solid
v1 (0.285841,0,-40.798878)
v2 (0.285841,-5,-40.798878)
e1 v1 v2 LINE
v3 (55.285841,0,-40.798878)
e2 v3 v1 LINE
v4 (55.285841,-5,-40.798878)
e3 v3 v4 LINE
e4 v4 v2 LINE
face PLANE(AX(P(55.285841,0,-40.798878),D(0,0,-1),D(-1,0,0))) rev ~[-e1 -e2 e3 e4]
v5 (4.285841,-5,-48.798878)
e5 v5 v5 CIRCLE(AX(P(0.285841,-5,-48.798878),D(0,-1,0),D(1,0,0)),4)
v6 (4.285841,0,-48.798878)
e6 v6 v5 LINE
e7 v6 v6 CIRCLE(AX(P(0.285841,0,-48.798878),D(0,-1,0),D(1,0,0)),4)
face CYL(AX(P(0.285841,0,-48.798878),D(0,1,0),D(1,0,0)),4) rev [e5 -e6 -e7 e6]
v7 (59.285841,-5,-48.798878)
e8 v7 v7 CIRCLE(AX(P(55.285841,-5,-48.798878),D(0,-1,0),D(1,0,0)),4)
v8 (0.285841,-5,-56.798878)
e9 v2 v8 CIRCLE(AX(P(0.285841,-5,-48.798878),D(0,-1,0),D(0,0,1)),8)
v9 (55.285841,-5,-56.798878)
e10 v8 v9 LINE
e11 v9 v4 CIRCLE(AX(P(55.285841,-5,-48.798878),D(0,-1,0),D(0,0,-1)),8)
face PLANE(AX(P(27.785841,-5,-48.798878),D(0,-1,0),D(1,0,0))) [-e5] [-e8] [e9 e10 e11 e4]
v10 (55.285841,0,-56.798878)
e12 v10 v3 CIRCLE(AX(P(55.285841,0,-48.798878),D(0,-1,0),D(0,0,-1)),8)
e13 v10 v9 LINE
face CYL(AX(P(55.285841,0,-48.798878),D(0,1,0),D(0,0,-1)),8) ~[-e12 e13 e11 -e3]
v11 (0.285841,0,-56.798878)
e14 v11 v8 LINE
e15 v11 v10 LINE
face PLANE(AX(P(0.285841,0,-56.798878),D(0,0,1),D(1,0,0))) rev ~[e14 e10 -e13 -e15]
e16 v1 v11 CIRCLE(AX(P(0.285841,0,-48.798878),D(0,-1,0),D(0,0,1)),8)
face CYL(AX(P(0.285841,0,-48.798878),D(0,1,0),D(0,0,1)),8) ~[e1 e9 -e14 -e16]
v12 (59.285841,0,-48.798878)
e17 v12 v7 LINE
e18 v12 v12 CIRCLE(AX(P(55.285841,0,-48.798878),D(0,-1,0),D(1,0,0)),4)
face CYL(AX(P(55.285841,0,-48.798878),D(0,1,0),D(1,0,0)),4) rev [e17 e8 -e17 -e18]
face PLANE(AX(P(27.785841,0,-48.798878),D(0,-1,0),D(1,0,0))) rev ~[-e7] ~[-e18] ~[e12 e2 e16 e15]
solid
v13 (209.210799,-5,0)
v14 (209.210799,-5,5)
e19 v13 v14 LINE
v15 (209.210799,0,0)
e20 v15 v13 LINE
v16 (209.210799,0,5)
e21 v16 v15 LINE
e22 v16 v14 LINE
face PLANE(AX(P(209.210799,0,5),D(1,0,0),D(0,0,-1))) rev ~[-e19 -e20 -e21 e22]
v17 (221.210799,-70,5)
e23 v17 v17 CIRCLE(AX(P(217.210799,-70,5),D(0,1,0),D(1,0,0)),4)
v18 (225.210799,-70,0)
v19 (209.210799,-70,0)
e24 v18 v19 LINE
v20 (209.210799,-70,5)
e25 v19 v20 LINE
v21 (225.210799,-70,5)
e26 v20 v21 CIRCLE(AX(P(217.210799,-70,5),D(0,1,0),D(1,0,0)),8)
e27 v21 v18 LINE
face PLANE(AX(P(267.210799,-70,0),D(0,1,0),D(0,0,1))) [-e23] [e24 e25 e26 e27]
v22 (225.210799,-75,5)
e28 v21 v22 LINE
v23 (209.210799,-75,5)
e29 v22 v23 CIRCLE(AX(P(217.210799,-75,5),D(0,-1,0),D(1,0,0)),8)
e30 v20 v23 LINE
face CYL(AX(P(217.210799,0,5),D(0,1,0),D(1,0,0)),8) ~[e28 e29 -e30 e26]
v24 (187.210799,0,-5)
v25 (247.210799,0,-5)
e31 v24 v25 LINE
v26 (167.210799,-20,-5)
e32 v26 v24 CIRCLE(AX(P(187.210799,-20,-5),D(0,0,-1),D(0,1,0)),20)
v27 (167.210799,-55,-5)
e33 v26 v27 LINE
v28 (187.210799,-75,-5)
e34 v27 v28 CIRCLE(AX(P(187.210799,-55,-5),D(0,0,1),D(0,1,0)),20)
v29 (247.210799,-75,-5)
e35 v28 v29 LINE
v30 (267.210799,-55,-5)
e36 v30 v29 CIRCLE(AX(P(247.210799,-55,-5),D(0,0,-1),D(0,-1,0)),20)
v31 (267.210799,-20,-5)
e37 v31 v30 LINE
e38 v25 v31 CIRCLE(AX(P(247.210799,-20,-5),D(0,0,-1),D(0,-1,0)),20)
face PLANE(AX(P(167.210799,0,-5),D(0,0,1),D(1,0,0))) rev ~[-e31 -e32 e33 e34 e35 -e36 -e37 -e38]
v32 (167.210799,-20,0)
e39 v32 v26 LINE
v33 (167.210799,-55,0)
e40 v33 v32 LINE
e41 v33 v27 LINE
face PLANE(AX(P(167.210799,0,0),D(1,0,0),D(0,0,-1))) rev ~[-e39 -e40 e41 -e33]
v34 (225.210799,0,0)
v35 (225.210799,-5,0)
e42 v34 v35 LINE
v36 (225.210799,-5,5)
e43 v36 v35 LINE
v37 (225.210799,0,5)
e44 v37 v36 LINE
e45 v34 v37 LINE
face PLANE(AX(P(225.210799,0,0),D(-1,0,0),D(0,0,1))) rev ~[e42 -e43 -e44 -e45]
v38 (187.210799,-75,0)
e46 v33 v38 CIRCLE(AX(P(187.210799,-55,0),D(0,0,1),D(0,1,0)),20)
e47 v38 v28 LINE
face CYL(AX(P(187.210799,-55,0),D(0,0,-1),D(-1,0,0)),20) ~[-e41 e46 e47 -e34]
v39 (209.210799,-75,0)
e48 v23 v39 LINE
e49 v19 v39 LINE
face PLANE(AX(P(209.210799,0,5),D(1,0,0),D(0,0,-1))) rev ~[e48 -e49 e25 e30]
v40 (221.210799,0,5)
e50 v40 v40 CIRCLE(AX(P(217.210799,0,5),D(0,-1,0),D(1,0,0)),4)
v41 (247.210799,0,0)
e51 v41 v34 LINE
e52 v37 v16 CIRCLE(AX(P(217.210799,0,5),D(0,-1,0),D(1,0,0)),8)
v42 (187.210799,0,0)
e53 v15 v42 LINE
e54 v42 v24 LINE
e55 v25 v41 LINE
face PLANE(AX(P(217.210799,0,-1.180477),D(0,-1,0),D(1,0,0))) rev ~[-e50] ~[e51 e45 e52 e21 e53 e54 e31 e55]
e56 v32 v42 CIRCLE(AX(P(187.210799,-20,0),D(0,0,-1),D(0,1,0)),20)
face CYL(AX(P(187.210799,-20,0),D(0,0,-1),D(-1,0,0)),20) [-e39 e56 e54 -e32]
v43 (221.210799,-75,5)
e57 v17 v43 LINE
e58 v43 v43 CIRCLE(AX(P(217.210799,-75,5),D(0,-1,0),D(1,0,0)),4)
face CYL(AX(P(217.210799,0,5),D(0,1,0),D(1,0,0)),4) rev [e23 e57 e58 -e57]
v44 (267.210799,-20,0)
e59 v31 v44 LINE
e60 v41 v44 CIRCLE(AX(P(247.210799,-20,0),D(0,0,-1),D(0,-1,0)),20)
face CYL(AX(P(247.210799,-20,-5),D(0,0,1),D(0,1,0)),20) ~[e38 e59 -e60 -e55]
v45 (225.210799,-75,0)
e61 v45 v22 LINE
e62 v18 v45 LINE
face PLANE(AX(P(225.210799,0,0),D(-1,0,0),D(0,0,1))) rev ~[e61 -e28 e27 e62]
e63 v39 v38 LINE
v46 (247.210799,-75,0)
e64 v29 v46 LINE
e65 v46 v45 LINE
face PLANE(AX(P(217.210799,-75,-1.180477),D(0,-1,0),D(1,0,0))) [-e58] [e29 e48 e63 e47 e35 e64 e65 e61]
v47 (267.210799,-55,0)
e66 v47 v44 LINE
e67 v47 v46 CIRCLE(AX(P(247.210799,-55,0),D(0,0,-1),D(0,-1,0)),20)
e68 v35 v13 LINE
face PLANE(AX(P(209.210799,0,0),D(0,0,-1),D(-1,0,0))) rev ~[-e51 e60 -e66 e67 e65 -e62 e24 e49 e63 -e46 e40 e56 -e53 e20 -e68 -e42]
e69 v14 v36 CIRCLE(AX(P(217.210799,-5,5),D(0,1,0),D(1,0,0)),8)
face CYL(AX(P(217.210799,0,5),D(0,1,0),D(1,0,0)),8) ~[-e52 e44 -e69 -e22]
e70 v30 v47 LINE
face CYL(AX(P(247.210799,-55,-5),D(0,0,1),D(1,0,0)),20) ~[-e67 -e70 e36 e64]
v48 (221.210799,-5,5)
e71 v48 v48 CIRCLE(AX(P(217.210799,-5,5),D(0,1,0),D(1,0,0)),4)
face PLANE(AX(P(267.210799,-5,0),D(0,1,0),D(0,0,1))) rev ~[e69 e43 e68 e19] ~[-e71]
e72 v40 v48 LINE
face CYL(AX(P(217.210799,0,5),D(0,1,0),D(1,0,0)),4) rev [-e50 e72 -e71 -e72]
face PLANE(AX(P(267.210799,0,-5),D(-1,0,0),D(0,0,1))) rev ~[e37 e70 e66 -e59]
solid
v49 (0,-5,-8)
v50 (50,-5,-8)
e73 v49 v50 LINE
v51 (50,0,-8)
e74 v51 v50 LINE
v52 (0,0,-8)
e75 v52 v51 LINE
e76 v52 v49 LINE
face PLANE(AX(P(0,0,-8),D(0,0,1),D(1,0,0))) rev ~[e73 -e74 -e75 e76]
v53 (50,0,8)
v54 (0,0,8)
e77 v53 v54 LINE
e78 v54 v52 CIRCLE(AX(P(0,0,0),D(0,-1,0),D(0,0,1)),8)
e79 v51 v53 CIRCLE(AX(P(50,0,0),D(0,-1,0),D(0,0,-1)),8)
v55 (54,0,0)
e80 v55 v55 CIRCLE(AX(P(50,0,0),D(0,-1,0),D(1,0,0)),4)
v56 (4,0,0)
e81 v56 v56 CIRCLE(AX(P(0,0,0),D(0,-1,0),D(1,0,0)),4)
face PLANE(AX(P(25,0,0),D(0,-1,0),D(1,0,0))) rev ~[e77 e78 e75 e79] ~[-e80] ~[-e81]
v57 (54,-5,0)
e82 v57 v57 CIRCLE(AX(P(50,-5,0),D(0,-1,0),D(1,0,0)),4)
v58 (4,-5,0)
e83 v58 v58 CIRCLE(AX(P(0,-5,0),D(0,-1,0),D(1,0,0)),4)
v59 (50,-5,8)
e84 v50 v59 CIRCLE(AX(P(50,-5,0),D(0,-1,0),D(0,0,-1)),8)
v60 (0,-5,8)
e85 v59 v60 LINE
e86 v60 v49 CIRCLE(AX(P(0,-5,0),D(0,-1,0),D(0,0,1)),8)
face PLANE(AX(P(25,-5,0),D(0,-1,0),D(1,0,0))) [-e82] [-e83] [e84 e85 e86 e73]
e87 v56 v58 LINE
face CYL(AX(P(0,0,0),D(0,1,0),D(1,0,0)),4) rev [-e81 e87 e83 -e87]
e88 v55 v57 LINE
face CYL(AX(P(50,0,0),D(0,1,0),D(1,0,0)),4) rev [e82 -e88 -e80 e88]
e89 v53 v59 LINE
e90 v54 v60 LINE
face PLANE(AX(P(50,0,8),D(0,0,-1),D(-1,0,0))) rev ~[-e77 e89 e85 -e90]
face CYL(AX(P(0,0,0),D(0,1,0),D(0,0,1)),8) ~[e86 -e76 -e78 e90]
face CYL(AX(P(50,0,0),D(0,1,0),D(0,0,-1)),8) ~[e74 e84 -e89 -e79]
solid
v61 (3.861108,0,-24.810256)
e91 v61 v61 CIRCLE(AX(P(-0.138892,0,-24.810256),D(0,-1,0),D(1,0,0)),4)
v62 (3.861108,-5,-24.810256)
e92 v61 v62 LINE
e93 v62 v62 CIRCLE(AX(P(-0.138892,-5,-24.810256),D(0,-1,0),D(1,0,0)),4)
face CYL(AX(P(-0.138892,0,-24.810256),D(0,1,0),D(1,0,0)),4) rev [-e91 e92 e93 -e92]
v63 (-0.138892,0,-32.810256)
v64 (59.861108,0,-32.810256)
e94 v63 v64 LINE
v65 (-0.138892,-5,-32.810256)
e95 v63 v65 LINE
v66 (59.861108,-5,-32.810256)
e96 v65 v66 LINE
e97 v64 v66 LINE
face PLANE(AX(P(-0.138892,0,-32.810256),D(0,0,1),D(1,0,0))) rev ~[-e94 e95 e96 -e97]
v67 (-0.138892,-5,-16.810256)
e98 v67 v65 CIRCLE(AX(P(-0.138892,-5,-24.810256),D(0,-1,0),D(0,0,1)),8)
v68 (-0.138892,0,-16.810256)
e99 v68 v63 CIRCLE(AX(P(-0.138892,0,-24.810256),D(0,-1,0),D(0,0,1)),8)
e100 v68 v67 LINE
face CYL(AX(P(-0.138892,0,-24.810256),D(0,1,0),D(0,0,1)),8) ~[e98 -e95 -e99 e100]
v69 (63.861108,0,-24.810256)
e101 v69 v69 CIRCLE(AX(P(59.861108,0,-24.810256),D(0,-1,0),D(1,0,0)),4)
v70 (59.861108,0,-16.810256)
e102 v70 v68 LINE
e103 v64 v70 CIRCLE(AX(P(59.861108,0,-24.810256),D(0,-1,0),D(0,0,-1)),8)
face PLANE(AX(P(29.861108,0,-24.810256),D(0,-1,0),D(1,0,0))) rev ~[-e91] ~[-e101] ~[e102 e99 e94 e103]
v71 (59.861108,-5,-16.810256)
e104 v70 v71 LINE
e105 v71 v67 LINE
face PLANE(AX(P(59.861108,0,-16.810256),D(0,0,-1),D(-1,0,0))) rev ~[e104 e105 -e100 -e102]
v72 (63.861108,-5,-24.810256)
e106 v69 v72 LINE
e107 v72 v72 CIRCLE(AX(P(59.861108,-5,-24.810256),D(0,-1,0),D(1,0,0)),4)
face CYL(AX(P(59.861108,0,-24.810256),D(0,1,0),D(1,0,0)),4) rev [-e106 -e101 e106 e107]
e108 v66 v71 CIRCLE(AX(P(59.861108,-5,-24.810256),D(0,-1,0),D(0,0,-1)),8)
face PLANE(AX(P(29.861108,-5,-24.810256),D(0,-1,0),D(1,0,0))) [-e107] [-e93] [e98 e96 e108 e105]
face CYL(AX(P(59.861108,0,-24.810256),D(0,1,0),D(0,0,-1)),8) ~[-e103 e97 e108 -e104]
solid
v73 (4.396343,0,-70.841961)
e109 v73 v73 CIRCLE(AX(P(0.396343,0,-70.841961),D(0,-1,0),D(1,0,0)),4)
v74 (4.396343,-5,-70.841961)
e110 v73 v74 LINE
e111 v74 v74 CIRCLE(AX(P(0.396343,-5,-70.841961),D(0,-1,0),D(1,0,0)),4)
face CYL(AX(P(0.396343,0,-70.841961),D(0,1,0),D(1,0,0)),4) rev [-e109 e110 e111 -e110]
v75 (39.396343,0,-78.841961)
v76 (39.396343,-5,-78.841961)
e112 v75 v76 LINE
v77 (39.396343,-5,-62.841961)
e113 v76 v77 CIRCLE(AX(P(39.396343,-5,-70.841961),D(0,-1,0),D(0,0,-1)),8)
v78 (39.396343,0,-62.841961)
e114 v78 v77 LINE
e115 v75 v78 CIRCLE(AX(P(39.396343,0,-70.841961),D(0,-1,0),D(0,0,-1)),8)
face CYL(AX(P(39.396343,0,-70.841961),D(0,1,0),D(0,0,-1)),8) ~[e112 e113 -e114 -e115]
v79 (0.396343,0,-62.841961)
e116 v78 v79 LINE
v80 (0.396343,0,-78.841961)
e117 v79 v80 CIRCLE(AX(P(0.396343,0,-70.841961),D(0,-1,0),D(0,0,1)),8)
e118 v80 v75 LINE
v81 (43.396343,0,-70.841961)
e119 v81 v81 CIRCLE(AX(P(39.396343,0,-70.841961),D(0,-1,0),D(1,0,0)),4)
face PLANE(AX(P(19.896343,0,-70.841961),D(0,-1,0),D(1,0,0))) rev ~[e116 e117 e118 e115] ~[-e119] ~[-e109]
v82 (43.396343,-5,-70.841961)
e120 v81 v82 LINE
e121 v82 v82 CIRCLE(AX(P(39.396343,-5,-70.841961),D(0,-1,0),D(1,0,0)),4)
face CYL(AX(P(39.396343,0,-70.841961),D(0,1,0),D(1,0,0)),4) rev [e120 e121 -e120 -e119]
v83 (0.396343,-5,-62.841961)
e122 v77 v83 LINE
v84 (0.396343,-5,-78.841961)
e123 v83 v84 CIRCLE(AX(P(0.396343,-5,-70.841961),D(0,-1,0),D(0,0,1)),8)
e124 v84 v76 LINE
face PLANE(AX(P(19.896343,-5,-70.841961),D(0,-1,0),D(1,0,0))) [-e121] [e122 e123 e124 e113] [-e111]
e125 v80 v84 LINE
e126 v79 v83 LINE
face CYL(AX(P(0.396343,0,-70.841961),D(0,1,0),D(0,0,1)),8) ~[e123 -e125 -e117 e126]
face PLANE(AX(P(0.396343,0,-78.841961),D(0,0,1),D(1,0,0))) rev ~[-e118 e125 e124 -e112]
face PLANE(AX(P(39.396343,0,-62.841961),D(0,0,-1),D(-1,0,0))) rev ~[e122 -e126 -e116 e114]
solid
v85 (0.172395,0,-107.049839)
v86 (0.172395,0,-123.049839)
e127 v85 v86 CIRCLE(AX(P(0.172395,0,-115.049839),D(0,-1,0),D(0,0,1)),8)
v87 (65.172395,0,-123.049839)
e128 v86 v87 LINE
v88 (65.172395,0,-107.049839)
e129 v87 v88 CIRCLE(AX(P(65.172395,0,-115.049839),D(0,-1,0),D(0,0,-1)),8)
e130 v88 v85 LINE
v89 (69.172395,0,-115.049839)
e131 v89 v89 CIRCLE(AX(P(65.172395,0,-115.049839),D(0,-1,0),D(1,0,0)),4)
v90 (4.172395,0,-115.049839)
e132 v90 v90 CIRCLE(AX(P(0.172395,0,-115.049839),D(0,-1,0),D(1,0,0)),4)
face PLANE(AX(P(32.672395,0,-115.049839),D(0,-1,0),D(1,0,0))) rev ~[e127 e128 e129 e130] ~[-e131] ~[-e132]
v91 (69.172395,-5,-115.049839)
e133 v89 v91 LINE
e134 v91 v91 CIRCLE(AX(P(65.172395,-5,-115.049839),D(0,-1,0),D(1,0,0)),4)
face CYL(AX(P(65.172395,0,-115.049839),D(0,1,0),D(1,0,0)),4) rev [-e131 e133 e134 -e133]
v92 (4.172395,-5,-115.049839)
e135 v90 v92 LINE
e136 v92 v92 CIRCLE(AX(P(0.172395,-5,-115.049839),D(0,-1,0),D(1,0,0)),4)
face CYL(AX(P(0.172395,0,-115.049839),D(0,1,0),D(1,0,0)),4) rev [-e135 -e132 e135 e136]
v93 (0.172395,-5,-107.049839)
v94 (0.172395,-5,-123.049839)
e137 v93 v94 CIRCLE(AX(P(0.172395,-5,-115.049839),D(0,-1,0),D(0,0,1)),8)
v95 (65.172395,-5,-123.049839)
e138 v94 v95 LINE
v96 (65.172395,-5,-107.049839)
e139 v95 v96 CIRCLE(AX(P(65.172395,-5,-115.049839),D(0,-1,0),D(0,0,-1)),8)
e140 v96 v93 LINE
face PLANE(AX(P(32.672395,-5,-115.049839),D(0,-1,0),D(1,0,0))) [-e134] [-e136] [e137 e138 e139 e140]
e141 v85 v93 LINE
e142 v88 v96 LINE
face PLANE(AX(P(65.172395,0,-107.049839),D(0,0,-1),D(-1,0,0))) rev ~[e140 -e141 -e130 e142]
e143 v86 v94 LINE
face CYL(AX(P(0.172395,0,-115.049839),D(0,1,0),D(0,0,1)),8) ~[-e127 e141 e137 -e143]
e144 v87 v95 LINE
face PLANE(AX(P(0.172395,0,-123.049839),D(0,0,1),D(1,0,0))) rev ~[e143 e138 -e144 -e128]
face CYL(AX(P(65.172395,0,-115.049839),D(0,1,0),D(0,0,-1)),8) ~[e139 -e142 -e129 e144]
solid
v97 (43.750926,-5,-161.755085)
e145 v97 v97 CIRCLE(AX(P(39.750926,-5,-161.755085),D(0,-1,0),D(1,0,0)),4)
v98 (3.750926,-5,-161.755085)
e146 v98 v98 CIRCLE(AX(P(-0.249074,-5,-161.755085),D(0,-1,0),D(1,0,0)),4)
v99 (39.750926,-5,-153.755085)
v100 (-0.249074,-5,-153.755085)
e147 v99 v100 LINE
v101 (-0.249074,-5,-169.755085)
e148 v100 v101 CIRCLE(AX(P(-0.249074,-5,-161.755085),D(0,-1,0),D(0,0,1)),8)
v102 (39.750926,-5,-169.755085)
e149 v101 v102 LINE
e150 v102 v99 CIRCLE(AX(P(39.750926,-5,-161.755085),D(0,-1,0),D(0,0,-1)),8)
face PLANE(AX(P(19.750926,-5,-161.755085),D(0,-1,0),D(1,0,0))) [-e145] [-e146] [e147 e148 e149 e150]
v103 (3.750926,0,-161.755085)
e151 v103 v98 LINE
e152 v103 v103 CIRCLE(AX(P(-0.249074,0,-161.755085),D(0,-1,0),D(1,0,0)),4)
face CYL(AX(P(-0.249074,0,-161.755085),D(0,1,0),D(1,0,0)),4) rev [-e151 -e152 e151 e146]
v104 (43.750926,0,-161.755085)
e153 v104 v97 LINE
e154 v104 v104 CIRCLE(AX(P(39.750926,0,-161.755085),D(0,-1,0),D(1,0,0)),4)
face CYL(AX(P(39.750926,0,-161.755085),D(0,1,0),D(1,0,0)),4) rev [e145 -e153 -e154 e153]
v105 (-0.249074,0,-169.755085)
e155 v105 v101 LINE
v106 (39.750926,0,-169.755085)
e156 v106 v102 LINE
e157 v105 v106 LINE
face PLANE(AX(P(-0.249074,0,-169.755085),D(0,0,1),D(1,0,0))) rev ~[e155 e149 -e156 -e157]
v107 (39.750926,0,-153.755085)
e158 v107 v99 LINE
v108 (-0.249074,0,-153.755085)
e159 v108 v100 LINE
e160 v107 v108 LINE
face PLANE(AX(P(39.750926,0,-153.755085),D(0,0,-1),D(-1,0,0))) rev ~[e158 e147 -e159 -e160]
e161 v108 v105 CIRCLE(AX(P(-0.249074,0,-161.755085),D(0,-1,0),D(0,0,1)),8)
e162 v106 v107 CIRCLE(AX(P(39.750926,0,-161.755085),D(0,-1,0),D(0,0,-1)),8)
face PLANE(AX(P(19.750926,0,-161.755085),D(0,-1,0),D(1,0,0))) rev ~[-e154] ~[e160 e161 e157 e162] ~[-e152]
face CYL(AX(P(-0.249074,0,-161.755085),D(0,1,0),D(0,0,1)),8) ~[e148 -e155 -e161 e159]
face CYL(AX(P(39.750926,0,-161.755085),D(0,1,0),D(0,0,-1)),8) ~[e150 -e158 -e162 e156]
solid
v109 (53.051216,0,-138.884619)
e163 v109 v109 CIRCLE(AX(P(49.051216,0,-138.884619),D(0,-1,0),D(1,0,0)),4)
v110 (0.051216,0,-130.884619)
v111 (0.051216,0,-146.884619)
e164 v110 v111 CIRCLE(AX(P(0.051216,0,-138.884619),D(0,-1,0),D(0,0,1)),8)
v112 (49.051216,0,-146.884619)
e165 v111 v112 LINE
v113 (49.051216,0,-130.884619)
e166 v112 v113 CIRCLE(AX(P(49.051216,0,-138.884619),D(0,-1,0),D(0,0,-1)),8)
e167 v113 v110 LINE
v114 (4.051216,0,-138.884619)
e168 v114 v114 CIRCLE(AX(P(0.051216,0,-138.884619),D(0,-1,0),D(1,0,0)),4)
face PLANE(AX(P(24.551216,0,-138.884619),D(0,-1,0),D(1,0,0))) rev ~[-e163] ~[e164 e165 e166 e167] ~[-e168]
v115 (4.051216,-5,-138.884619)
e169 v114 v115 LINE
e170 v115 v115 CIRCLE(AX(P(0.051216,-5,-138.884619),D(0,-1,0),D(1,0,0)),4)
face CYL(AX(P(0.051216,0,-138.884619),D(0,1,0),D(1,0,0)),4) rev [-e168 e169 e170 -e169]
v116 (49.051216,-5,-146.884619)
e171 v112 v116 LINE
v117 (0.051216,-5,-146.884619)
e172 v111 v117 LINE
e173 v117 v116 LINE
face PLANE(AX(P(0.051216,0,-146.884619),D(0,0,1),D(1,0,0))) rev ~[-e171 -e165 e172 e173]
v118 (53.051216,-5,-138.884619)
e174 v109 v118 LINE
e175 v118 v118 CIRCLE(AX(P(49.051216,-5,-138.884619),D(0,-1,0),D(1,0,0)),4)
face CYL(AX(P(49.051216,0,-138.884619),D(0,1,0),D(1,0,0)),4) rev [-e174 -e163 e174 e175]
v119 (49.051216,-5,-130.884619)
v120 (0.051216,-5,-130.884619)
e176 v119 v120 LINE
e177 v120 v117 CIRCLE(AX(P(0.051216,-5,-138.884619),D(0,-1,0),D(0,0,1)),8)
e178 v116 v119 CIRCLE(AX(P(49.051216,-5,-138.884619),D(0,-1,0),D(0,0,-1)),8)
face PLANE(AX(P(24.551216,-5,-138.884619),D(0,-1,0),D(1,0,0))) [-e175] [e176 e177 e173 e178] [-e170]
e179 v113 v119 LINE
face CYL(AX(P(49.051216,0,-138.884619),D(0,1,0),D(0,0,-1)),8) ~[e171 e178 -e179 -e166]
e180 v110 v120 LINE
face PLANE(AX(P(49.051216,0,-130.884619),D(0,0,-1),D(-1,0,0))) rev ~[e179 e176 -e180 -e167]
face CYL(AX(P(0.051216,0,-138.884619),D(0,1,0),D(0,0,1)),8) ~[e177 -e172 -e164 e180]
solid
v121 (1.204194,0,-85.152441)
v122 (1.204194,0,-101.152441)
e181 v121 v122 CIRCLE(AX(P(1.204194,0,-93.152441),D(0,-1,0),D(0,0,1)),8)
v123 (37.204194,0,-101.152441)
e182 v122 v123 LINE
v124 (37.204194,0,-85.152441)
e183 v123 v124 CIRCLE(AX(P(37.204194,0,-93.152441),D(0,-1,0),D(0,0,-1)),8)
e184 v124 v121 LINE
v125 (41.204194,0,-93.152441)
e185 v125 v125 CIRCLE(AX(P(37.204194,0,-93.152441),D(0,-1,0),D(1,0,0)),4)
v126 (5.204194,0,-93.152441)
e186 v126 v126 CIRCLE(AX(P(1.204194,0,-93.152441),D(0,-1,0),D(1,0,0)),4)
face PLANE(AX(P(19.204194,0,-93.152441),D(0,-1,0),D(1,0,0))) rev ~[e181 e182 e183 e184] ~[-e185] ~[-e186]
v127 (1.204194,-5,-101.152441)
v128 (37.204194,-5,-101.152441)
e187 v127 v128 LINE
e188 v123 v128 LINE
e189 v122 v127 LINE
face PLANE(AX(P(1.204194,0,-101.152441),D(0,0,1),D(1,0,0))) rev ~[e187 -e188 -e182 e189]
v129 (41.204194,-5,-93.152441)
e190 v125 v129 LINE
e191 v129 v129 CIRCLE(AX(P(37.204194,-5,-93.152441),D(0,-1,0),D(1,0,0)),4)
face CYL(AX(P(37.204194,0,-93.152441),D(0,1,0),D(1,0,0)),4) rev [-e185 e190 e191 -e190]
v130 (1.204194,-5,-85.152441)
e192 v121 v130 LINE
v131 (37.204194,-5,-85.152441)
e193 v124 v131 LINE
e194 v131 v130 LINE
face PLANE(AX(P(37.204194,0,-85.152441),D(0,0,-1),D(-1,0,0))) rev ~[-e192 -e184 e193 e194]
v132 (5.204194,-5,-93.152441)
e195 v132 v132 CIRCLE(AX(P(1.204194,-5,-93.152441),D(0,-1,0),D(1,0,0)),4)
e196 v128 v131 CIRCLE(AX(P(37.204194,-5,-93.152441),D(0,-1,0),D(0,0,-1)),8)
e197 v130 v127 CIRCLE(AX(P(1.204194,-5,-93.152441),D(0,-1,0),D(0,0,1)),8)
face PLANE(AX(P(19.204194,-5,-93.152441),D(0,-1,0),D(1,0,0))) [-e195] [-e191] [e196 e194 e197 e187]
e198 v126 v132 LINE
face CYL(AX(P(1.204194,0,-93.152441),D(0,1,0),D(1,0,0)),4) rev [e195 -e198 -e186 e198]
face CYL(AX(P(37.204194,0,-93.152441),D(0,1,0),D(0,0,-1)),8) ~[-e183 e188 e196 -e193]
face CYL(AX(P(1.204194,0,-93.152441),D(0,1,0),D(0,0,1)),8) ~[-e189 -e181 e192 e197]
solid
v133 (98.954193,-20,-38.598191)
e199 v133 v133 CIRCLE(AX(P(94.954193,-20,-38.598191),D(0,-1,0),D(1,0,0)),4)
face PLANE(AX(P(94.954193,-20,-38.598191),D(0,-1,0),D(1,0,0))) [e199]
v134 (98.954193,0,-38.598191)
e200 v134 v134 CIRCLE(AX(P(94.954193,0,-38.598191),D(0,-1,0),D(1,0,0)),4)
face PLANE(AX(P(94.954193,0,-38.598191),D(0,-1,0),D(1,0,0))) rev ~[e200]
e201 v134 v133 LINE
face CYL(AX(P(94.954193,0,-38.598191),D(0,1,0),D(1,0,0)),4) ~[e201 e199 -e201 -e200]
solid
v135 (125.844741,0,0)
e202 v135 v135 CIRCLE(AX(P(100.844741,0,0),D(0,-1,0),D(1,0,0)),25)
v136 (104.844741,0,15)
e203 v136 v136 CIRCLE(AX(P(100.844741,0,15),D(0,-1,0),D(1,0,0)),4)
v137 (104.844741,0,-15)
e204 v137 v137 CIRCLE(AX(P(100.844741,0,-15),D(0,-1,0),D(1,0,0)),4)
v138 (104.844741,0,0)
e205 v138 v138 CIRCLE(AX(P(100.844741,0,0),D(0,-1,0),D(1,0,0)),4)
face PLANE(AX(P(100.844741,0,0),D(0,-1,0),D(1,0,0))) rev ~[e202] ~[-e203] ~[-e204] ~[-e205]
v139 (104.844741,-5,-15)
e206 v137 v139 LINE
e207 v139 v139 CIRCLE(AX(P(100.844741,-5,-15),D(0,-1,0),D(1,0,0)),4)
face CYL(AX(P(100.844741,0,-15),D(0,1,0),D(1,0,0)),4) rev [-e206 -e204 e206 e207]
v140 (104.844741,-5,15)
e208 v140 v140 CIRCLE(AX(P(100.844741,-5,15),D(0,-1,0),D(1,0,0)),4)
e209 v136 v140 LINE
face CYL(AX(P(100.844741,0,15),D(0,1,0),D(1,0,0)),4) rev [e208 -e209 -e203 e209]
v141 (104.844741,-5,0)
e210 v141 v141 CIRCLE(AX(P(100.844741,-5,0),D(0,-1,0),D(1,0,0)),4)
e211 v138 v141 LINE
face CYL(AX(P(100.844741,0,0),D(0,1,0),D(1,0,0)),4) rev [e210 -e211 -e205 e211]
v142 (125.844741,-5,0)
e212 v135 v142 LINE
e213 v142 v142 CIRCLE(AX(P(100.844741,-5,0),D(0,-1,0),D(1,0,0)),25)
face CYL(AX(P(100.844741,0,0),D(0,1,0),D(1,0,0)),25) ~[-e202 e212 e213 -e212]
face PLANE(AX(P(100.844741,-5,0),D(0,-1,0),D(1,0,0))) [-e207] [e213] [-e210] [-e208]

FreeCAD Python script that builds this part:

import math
import FreeCAD as App
import Part
import Sketcher

V = App.Vector
Q = App.Units.Quantity


def edges_at(feature, points):
    """Names of the edges that pass closest to the given points."""
    edges = feature.Shape.Edges
    near = lambda p: min(range(len(edges)), key=lambda i: edges[i].distToShape(Part.Vertex(*p))[0])
    return sorted({f"Edge{near(p) + 1}" for p in points})

doc = App.newDocument("Part")
body = doc.addObject("PartDesign::Body", "Body")

# Sketch on XZ plane
sketch1 = doc.addObject("Sketcher::SketchObject", "Sketch")
body.addObject(sketch1)
sketch1.AttachmentSupport = (doc.XZ_Plane, [""])
sketch1.MapMode = "FlatFace"
sketch1.addGeometry([
    Part.LineSegment(V(50, 8, 0), V(0, 8, 0)),  # 0
    Part.ArcOfCircle(Part.Circle(V(0, 0, 0), V(0, 0, 1), 8), math.radians(90), math.radians(270)),  # 1
    Part.LineSegment(V(0, -8, 0), V(50, -8, 0)),  # 2
    Part.ArcOfCircle(Part.Circle(V(50, 0, 0), V(0, 0, 1), 8), math.radians(-90), math.radians(90)),  # 3
    Part.Circle(V(0, 0, 0), V(0, 0, 1), 4),  # 4
    Part.Circle(V(50, 0, 0), V(0, 0, 1), 4),  # 5
], False)
sketch1.addConstraint([
    Sketcher.Constraint("Tangent", 0, 2, 1, 1),
    Sketcher.Constraint("Tangent", 1, 2, 2, 1),
    Sketcher.Constraint("Tangent", 2, 2, 3, 1),
    Sketcher.Constraint("Tangent", 3, 2, 0, 1),
    Sketcher.Constraint("Horizontal", 0),
    Sketcher.Constraint("Horizontal", 2),
    Sketcher.Constraint("Coincident", 1, 3, -1, 1),
    Sketcher.Constraint("Coincident", 4, 3, -1, 1),
    Sketcher.Constraint("Coincident", 5, 3, 3, 3),
    Sketcher.Constraint("Equal", 4, 5),
    Sketcher.Constraint("Diameter", 4, Q("8 mm")),
    Sketcher.Constraint("Radius", 1, Q("8 mm")),
    Sketcher.Constraint("DistanceX", 0, 2, 0, 1, Q("50 mm")),
])
pad1 = doc.addObject("PartDesign::Pad", "Pad")
body.addObject(pad1)
pad1.Profile = sketch1
pad1.Length = 5
body2 = doc.addObject("PartDesign::Body", "Body001")

# Sketch on XZ plane
sketch2 = doc.addObject("Sketcher::SketchObject", "Sketch001")
body2.addObject(sketch2)
sketch2.AttachmentSupport = (doc.getObject("XZ_Plane001"), [""])
sketch2.MapMode = "FlatFace"
sketch2.addGeometry([
    Part.LineSegment(V(59.9, -16.8, 0), V(-0.1, -16.8, 0)),  # 0
    Part.ArcOfCircle(Part.Circle(V(-0.1, -24.8, 0), V(0, 0, 1), 8), math.radians(90), math.radians(270)),  # 1
    Part.LineSegment(V(-0.1, -32.8, 0), V(59.9, -32.8, 0)),  # 2
    Part.ArcOfCircle(Part.Circle(V(59.9, -24.8, 0), V(0, 0, 1), 8), math.radians(-90), math.radians(90)),  # 3
    Part.Circle(V(-0.1, -24.8, 0), V(0, 0, 1), 4),  # 4
    Part.Circle(V(59.9, -24.8, 0), V(0, 0, 1), 4),  # 5
], False)
sketch2.addConstraint([
    Sketcher.Constraint("Tangent", 0, 2, 1, 1),
    Sketcher.Constraint("Tangent", 1, 2, 2, 1),
    Sketcher.Constraint("Tangent", 2, 2, 3, 1),
    Sketcher.Constraint("Tangent", 3, 2, 0, 1),
    Sketcher.Constraint("Horizontal", 0),
    Sketcher.Constraint("Horizontal", 2),
    Sketcher.Constraint("Coincident", 4, 3, 1, 3),
    Sketcher.Constraint("Coincident", 5, 3, 3, 3),
    Sketcher.Constraint("Equal", 4, 5),
    Sketcher.Constraint("Diameter", 4, Q("8 mm")),
    Sketcher.Constraint("Radius", 1, Q("8 mm")),
    Sketcher.Constraint("DistanceX", 0, 2, 0, 1, Q("60 mm")),
    Sketcher.Constraint("DistanceX", 1, 3, -1, 1, Q("0.138892 mm")),
    Sketcher.Constraint("DistanceY", 1, 3, -1, 1, Q("24.810256 mm")),
])
pad2 = doc.addObject("PartDesign::Pad", "Pad001")
body2.addObject(pad2)
pad2.Profile = sketch2
pad2.Length = 5
body3 = doc.addObject("PartDesign::Body", "Body002")

# Sketch on XZ plane
sketch3 = doc.addObject("Sketcher::SketchObject", "Sketch002")
body3.addObject(sketch3)
sketch3.AttachmentSupport = (doc.getObject("XZ_Plane002"), [""])
sketch3.MapMode = "FlatFace"
sketch3.addGeometry([
    Part.LineSegment(V(55.3, -40.8, 0), V(0.3, -40.8, 0)),  # 0
    Part.ArcOfCircle(Part.Circle(V(0.3, -48.8, 0), V(0, 0, 1), 8), math.radians(90), math.radians(270)),  # 1
    Part.LineSegment(V(0.3, -56.8, 0), V(55.3, -56.8, 0)),  # 2
    Part.ArcOfCircle(Part.Circle(V(55.3, -48.8, 0), V(0, 0, 1), 8), math.radians(-90), math.radians(90)),  # 3
    Part.Circle(V(0.3, -48.8, 0), V(0, 0, 1), 4),  # 4
    Part.Circle(V(55.3, -48.8, 0), V(0, 0, 1), 4),  # 5
], False)
sketch3.addConstraint([
    Sketcher.Constraint("Tangent", 0, 2, 1, 1),
    Sketcher.Constraint("Tangent", 1, 2, 2, 1),
    Sketcher.Constraint("Tangent", 2, 2, 3, 1),
    Sketcher.Constraint("Tangent", 3, 2, 0, 1),
    Sketcher.Constraint("Horizontal", 0),
    Sketcher.Constraint("Horizontal", 2),
    Sketcher.Constraint("Coincident", 4, 3, 1, 3),
    Sketcher.Constraint("Coincident", 5, 3, 3, 3),
    Sketcher.Constraint("Equal", 4, 5),
    Sketcher.Constraint("Diameter", 4, Q("8 mm")),
    Sketcher.Constraint("Radius", 1, Q("8 mm")),
    Sketcher.Constraint("DistanceX", 0, 2, 0, 1, Q("55 mm")),
    Sketcher.Constraint("DistanceX", -1, 1, 1, 3, Q("0.285841 mm")),
    Sketcher.Constraint("DistanceY", 1, 3, -1, 1, Q("48.798878 mm")),
])
pad3 = doc.addObject("PartDesign::Pad", "Pad002")
body3.addObject(pad3)
pad3.Profile = sketch3
pad3.Length = 5
body4 = doc.addObject("PartDesign::Body", "Body003")

# Sketch on XZ plane
sketch4 = doc.addObject("Sketcher::SketchObject", "Sketch003")
body4.addObject(sketch4)
sketch4.AttachmentSupport = (doc.getObject("XZ_Plane003"), [""])
sketch4.MapMode = "FlatFace"
sketch4.addGeometry([
    Part.LineSegment(V(39.4, -62.8, 0), V(0.4, -62.8, 0)),  # 0
    Part.ArcOfCircle(Part.Circle(V(0.4, -70.8, 0), V(0, 0, 1), 8), math.radians(90), math.radians(270)),  # 1
    Part.LineSegment(V(0.4, -78.8, 0), V(39.4, -78.8, 0)),  # 2
    Part.ArcOfCircle(Part.Circle(V(39.4, -70.8, 0), V(0, 0, 1), 8), math.radians(-90), math.radians(90)),  # 3
    Part.Circle(V(0.4, -70.8, 0), V(0, 0, 1), 4),  # 4
    Part.Circle(V(39.4, -70.8, 0), V(0, 0, 1), 4),  # 5
], False)
sketch4.addConstraint([
    Sketcher.Constraint("Tangent", 0, 2, 1, 1),
    Sketcher.Constraint("Tangent", 1, 2, 2, 1),
    Sketcher.Constraint("Tangent", 2, 2, 3, 1),
    Sketcher.Constraint("Tangent", 3, 2, 0, 1),
    Sketcher.Constraint("Horizontal", 0),
    Sketcher.Constraint("Horizontal", 2),
    Sketcher.Constraint("Coincident", 4, 3, 1, 3),
    Sketcher.Constraint("Coincident", 5, 3, 3, 3),
    Sketcher.Constraint("Equal", 4, 5),
    Sketcher.Constraint("Diameter", 4, Q("8 mm")),
    Sketcher.Constraint("Radius", 1, Q("8 mm")),
    Sketcher.Constraint("DistanceX", 0, 2, 0, 1, Q("39 mm")),
    Sketcher.Constraint("DistanceY", 1, 3, -1, 1, Q("70.841961 mm")),
    Sketcher.Constraint("DistanceX", -1, 1, 1, 3, Q("0.396343 mm")),
])
pad4 = doc.addObject("PartDesign::Pad", "Pad003")
body4.addObject(pad4)
pad4.Profile = sketch4
pad4.Length = 5
body5 = doc.addObject("PartDesign::Body", "Body004")

# Sketch on XZ plane
sketch5 = doc.addObject("Sketcher::SketchObject", "Sketch004")
body5.addObject(sketch5)
sketch5.AttachmentSupport = (doc.getObject("XZ_Plane004"), [""])
sketch5.MapMode = "FlatFace"
sketch5.addGeometry([
    Part.LineSegment(V(37.2, -85.2, 0), V(1.2, -85.2, 0)),  # 0
    Part.ArcOfCircle(Part.Circle(V(1.2, -93.2, 0), V(0, 0, 1), 8), math.radians(90), math.radians(270)),  # 1
    Part.LineSegment(V(1.2, -101.2, 0), V(37.2, -101.2, 0)),  # 2
    Part.ArcOfCircle(Part.Circle(V(37.2, -93.2, 0), V(0, 0, 1), 8), math.radians(-90), math.radians(90)),  # 3
    Part.Circle(V(1.2, -93.2, 0), V(0, 0, 1), 4),  # 4
    Part.Circle(V(37.2, -93.2, 0), V(0, 0, 1), 4),  # 5
], False)
sketch5.addConstraint([
    Sketcher.Constraint("Tangent", 0, 2, 1, 1),
    Sketcher.Constraint("Tangent", 1, 2, 2, 1),
    Sketcher.Constraint("Tangent", 2, 2, 3, 1),
    Sketcher.Constraint("Tangent", 3, 2, 0, 1),
    Sketcher.Constraint("Horizontal", 0),
    Sketcher.Constraint("Horizontal", 2),
    Sketcher.Constraint("Coincident", 4, 3, 1, 3),
    Sketcher.Constraint("Coincident", 5, 3, 3, 3),
    Sketcher.Constraint("Equal", 4, 5),
    Sketcher.Constraint("Diameter", 4, Q("8 mm")),
    Sketcher.Constraint("Radius", 1, Q("8 mm")),
    Sketcher.Constraint("DistanceX", 0, 2, 0, 1, Q("36 mm")),
    Sketcher.Constraint("DistanceY", 1, 3, -1, 1, Q("93.152441 mm")),
    Sketcher.Constraint("DistanceX", -1, 1, 1, 3, Q("1.204194 mm")),
])
pad5 = doc.addObject("PartDesign::Pad", "Pad004")
body5.addObject(pad5)
pad5.Profile = sketch5
pad5.Length = 5
body6 = doc.addObject("PartDesign::Body", "Body005")

# Sketch on XZ plane
sketch6 = doc.addObject("Sketcher::SketchObject", "Sketch005")
body6.addObject(sketch6)
sketch6.AttachmentSupport = (doc.getObject("XZ_Plane005"), [""])
sketch6.MapMode = "FlatFace"
sketch6.addGeometry([
    Part.LineSegment(V(65.2, -107, 0), V(0.2, -107, 0)),  # 0
    Part.ArcOfCircle(Part.Circle(V(0.2, -115, 0), V(0, 0, 1), 8), math.radians(90), math.radians(270)),  # 1
    Part.LineSegment(V(0.2, -123, 0), V(65.2, -123, 0)),  # 2
    Part.ArcOfCircle(Part.Circle(V(65.2, -115, 0), V(0, 0, 1), 8), math.radians(-90), math.radians(90)),  # 3
    Part.Circle(V(0.2, -115, 0), V(0, 0, 1), 4),  # 4
    Part.Circle(V(65.2, -115, 0), V(0, 0, 1), 4),  # 5
], False)
sketch6.addConstraint([
    Sketcher.Constraint("Tangent", 0, 2, 1, 1),
    Sketcher.Constraint("Tangent", 1, 2, 2, 1),
    Sketcher.Constraint("Tangent", 2, 2, 3, 1),
    Sketcher.Constraint("Tangent", 3, 2, 0, 1),
    Sketcher.Constraint("Horizontal", 0),
    Sketcher.Constraint("Horizontal", 2),
    Sketcher.Constraint("Coincident", 4, 3, 1, 3),
    Sketcher.Constraint("Coincident", 5, 3, 3, 3),
    Sketcher.Constraint("Equal", 4, 5),
    Sketcher.Constraint("Diameter", 4, Q("8 mm")),
    Sketcher.Constraint("Radius", 1, Q("8 mm")),
    Sketcher.Constraint("DistanceX", 0, 2, 0, 1, Q("65 mm")),
    Sketcher.Constraint("DistanceY", 1, 3, -1, 1, Q("115.049839 mm")),
    Sketcher.Constraint("DistanceX", -1, 1, 1, 3, Q("0.172395 mm")),
])
pad6 = doc.addObject("PartDesign::Pad", "Pad005")
body6.addObject(pad6)
pad6.Profile = sketch6
pad6.Length = 5
body7 = doc.addObject("PartDesign::Body", "Body006")

# Sketch on XZ plane
sketch7 = doc.addObject("Sketcher::SketchObject", "Sketch006")
body7.addObject(sketch7)
sketch7.AttachmentSupport = (doc.getObject("XZ_Plane006"), [""])
sketch7.MapMode = "FlatFace"
sketch7.addGeometry([
    Part.LineSegment(V(49.1, -130.9, 0), V(0.1, -130.9, 0)),  # 0
    Part.ArcOfCircle(Part.Circle(V(0.1, -138.9, 0), V(0, 0, 1), 8), math.radians(90), math.radians(270)),  # 1
    Part.LineSegment(V(0.1, -146.9, 0), V(49.1, -146.9, 0)),  # 2
    Part.ArcOfCircle(Part.Circle(V(49.1, -138.9, 0), V(0, 0, 1), 8), math.radians(-90), math.radians(90)),  # 3
    Part.Circle(V(0.1, -138.9, 0), V(0, 0, 1), 4),  # 4
    Part.Circle(V(49.1, -138.9, 0), V(0, 0, 1), 4),  # 5
], False)
sketch7.addConstraint([
    Sketcher.Constraint("Tangent", 0, 2, 1, 1),
    Sketcher.Constraint("Tangent", 1, 2, 2, 1),
    Sketcher.Constraint("Tangent", 2, 2, 3, 1),
    Sketcher.Constraint("Tangent", 3, 2, 0, 1),
    Sketcher.Constraint("Horizontal", 0),
    Sketcher.Constraint("Horizontal", 2),
    Sketcher.Constraint("Coincident", 4, 3, 1, 3),
    Sketcher.Constraint("Coincident", 5, 3, 3, 3),
    Sketcher.Constraint("Equal", 4, 5),
    Sketcher.Constraint("Diameter", 4, Q("8 mm")),
    Sketcher.Constraint("Radius", 1, Q("8 mm")),
    Sketcher.Constraint("DistanceX", 0, 2, 0, 1, Q("49 mm")),
    Sketcher.Constraint("DistanceY", 1, 3, -1, 1, Q("138.884619 mm")),
    Sketcher.Constraint("DistanceX", -1, 1, 1, 3, Q("0.051216 mm")),
])
pad7 = doc.addObject("PartDesign::Pad", "Pad006")
body7.addObject(pad7)
pad7.Profile = sketch7
pad7.Length = 5
body8 = doc.addObject("PartDesign::Body", "Body007")

# Sketch on XZ plane
sketch8 = doc.addObject("Sketcher::SketchObject", "Sketch007")
body8.addObject(sketch8)
sketch8.AttachmentSupport = (doc.getObject("XZ_Plane007"), [""])
sketch8.MapMode = "FlatFace"
sketch8.addGeometry([
    Part.Circle(V(100.8, 0, 0), V(0, 0, 1), 25),
    Part.Circle(V(100.8, -15, 0), V(0, 0, 1), 4),
    Part.Circle(V(100.8, 0, 0), V(0, 0, 1), 4),
    Part.Circle(V(100.8, 15, 0), V(0, 0, 1), 4),
], False)
sketch8.addConstraint([
    Sketcher.Constraint("Coincident", 2, 3, 0, 3),
    Sketcher.Constraint("Equal", 1, 2),
    Sketcher.Constraint("Equal", 2, 3),
    Sketcher.Constraint("Symmetric", 1, 3, 3, 3, -1),
    Sketcher.Constraint("PointOnObject", 0, 3, -1),
    Sketcher.Constraint("Vertical", 0, 3, 1, 3),
    Sketcher.Constraint("Diameter", 0, Q("50 mm")),
    Sketcher.Constraint("Diameter", 1, Q("8 mm")),
    Sketcher.Constraint("DistanceY", 1, 3, -1, 1, Q("15 mm")),
    Sketcher.Constraint("DistanceX", -1, 1, 0, 3, Q("100.844741 mm")),
])
pad8 = doc.addObject("PartDesign::Pad", "Pad007")
body8.addObject(pad8)
pad8.Profile = sketch8
pad8.Length = 5
body9 = doc.addObject("PartDesign::Body", "Body008")

# Sketch on XZ plane
sketch9 = doc.addObject("Sketcher::SketchObject", "Sketch008")
body9.addObject(sketch9)
sketch9.AttachmentSupport = (doc.getObject("XZ_Plane008"), [""])
sketch9.MapMode = "FlatFace"
sketch9.addGeometry([
    Part.LineSegment(V(167.2, 0, 0), V(167.2, -5, 0)),  # 0
    Part.LineSegment(V(167.2, -5, 0), V(267.2, -5, 0)),  # 1
    Part.LineSegment(V(267.2, -5, 0), V(267.2, 0, 0)),  # 2
    Part.LineSegment(V(267.2, 0, 0), V(225.2, 0, 0)),  # 3
    Part.LineSegment(V(225.2, 0, 0), V(225.2, 5, 0)),  # 4
    Part.ArcOfCircle(Part.Circle(V(217.2, 5, 0), V(0, 0, 1), 8), math.radians(0), math.radians(180)),  # 5
    Part.LineSegment(V(209.2, 5, 0), V(209.2, 0, 0)),  # 6
    Part.LineSegment(V(209.2, 0, 0), V(167.2, 0, 0)),  # 7
    Part.Circle(V(217.2, 5, 0), V(0, 0, 1), 4),  # 8
], False)
sketch9.addConstraint([
    Sketcher.Constraint("Coincident", 0, 2, 1, 1),
    Sketcher.Constraint("Coincident", 1, 2, 2, 1),
    Sketcher.Constraint("Coincident", 2, 2, 3, 1),
    Sketcher.Constraint("Coincident", 3, 2, 4, 1),
    Sketcher.Constraint("Tangent", 4, 2, 5, 1),
    Sketcher.Constraint("Tangent", 5, 2, 6, 1),
    Sketcher.Constraint("Coincident", 6, 2, 7, 1),
    Sketcher.Constraint("Coincident", 7, 2, 0, 1),
    Sketcher.Constraint("Vertical", 0),
    Sketcher.Constraint("Horizontal", 1),
    Sketcher.Constraint("Vertical", 2),
    Sketcher.Constraint("Horizontal", 3),
    Sketcher.Constraint("Vertical", 4),
    Sketcher.Constraint("Vertical", 6),
    Sketcher.Constraint("Horizontal", 7),
    Sketcher.Constraint("Coincident", 8, 3, 5, 3),
    Sketcher.Constraint("PointOnObject", 2, 2, -1),
    Sketcher.Constraint("PointOnObject", 6, 2, -1),
    Sketcher.Constraint("Equal", 3, 7),
    Sketcher.Constraint("Equal", 2, 4),
    Sketcher.Constraint("Diameter", 8, Q("8 mm")),
    Sketcher.Constraint("Radius", 5, Q("8 mm")),
    Sketcher.Constraint("DistanceX", 1, 1, 1, 2, Q("100 mm")),
    Sketcher.Constraint("DistanceY", 0, 2, 0, 1, Q("5 mm")),
    Sketcher.Constraint("DistanceX", -1, 1, 5, 3, Q("217.210799 mm")),
])
pad9 = doc.addObject("PartDesign::Pad", "Pad008")
body9.addObject(pad9)
pad9.Profile = sketch9
pad9.Length = 75

# Sketch on YZ plane
sketch10 = doc.addObject("Sketcher::SketchObject", "Sketch009")
body9.addObject(sketch10)
sketch10.AttachmentSupport = (doc.getObject("YZ_Plane008"), [""])
sketch10.MapMode = "FlatFace"
sketch10.AttachmentOffset = App.Placement(V(0, 0, 267.210799), App.Rotation())
sketch10.addGeometry([
    Part.LineSegment(V(-70, 14, 0), V(-70, 0, 0)),
    Part.LineSegment(V(-70, 0, 0), V(-5, 0, 0)),
    Part.LineSegment(V(-5, 0, 0), V(-5, 14, 0)),
    Part.LineSegment(V(-5, 14, 0), V(-70, 14, 0)),
], False)
sketch10.addConstraint([
    Sketcher.Constraint("Coincident", 0, 2, 1, 1),
    Sketcher.Constraint("Coincident", 1, 2, 2, 1),
    Sketcher.Constraint("Coincident", 2, 2, 3, 1),
    Sketcher.Constraint("Coincident", 3, 2, 0, 1),
    Sketcher.Constraint("Vertical", 0),
    Sketcher.Constraint("Horizontal", 1),
    Sketcher.Constraint("Vertical", 2),
    Sketcher.Constraint("Horizontal", 3),
    Sketcher.Constraint("PointOnObject", 0, 2, -1),
    Sketcher.Constraint("DistanceX", 1, 1, 1, 2, Q("65 mm")),
    Sketcher.Constraint("DistanceX", 0, 2, -1, 1, Q("70 mm")),
    Sketcher.Constraint("DistanceY", 0, 2, 0, 1, Q("14.119579 mm")),
])
pocket1 = doc.addObject("PartDesign::Pocket", "Pocket")
body9.addObject(pocket1)
pocket1.Profile = sketch10
pocket1.Type = "ThroughAll"
doc.recompute()

fillet = doc.addObject("PartDesign::Fillet", "Fillet")
body9.addObject(fillet)
fillet.Base = (pocket1, edges_at(pocket1, [
    (267.211, -75, -2.5),
    (267.211, 0, -2.5),
    (167.211, 0, -2.5),
    (167.211, -75, -2.5),
]))
fillet.Radius = 20
body10 = doc.addObject("PartDesign::Body", "Body009")

# Sketch on XZ plane
sketch11 = doc.addObject("Sketcher::SketchObject", "Sketch010")
body10.addObject(sketch11)
sketch11.AttachmentSupport = (doc.getObject("XZ_Plane009"), [""])
sketch11.MapMode = "FlatFace"
sketch11.addGeometry([
    Part.LineSegment(V(39.8, -153.8, 0), V(-0.2, -153.8, 0)),  # 0
    Part.ArcOfCircle(Part.Circle(V(-0.2, -161.8, 0), V(0, 0, 1), 8), math.radians(90), math.radians(270)),  # 1
    Part.LineSegment(V(-0.2, -169.8, 0), V(39.8, -169.8, 0)),  # 2
    Part.ArcOfCircle(Part.Circle(V(39.8, -161.8, 0), V(0, 0, 1), 8), math.radians(-90), math.radians(90)),  # 3
    Part.Circle(V(-0.2, -161.8, 0), V(0, 0, 1), 4),  # 4
    Part.Circle(V(39.8, -161.8, 0), V(0, 0, 1), 4),  # 5
], False)
sketch11.addConstraint([
    Sketcher.Constraint("Tangent", 0, 2, 1, 1),
    Sketcher.Constraint("Tangent", 1, 2, 2, 1),
    Sketcher.Constraint("Tangent", 2, 2, 3, 1),
    Sketcher.Constraint("Tangent", 3, 2, 0, 1),
    Sketcher.Constraint("Horizontal", 0),
    Sketcher.Constraint("Horizontal", 2),
    Sketcher.Constraint("Coincident", 4, 3, 1, 3),
    Sketcher.Constraint("Coincident", 5, 3, 3, 3),
    Sketcher.Constraint("Equal", 4, 5),
    Sketcher.Constraint("Diameter", 4, Q("8 mm")),
    Sketcher.Constraint("Radius", 1, Q("8 mm")),
    Sketcher.Constraint("DistanceX", 0, 2, 0, 1, Q("40 mm")),
    Sketcher.Constraint("DistanceX", 1, 3, -1, 1, Q("0.249074 mm")),
    Sketcher.Constraint("DistanceY", 1, 3, -1, 1, Q("161.755085 mm")),
])
pad10 = doc.addObject("PartDesign::Pad", "Pad009")
body10.addObject(pad10)
pad10.Profile = sketch11
pad10.Length = 5
body11 = doc.addObject("PartDesign::Body", "Body010")

# Sketch on XZ plane
sketch12 = doc.addObject("Sketcher::SketchObject", "Sketch011")
body11.addObject(sketch12)
sketch12.AttachmentSupport = (doc.getObject("XZ_Plane010"), [""])
sketch12.MapMode = "FlatFace"
sketch12.addGeometry(Part.Circle(V(95, -38.6, 0), V(0, 0, 1), 4), False)
sketch12.addConstraint([
    Sketcher.Constraint("Diameter", 0, Q("8 mm")),
    Sketcher.Constraint("DistanceY", 0, 3, -1, 1, Q("38.598191 mm")),
    Sketcher.Constraint("DistanceX", -1, 1, 0, 3, Q("94.954193 mm")),
])
pad11 = doc.addObject("PartDesign::Pad", "Pad010")
body11.addObject(pad11)
pad11.Profile = sketch12
pad11.Length = 20

doc.recompute()
